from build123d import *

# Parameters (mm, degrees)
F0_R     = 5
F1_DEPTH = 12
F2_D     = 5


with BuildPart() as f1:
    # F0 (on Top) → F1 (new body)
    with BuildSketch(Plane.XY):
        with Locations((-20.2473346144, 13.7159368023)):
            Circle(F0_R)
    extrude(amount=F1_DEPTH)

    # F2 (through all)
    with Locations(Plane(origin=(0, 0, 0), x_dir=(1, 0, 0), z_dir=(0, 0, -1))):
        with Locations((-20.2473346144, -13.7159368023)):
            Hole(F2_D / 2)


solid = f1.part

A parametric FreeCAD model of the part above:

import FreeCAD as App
import Part
import Sketcher

V = App.Vector

doc = App.newDocument("Part")
params = doc.addObject("Spreadsheet::Sheet", "Params")
for row, (alias, value) in enumerate([
    ("sketch1_diameter", "10 mm"),
    ("pad1_length", "12 mm"),
    ("sketch2_diameter", "5 mm"),
    ("hole_diameter", "5 mm"),
], start=1):
    params.set(f"A{row}", alias)
    params.set(f"B{row}", "=" + value)
    params.setAlias(f"B{row}", alias)

body = doc.addObject("PartDesign::Body", "Body")

# Sketch on XY plane
sketch1 = doc.addObject("Sketcher::SketchObject", "Sketch")
body.addObject(sketch1)
sketch1.AttachmentSupport = (doc.XY_Plane, [""])
sketch1.MapMode = "FlatFace"
sketch1.addGeometry(Part.Circle(V(-20, 14, 0), V(0, 0, 1), 5), False)
sketch1.addConstraint(Sketcher.Constraint("Diameter", 0, 10.0))
sketch1.addConstraint(Sketcher.Constraint("DistanceX", 0, 3, -1, 1, 20.247335))
sketch1.addConstraint(Sketcher.Constraint("DistanceY", -1, 1, 0, 3, 13.715937))
sketch1.setExpression("Constraints[0]", "Params.sketch1_diameter")
pad1 = doc.addObject("PartDesign::Pad", "Pad")
body.addObject(pad1)
pad1.Profile = sketch1
pad1.setExpression("Length", "Params.pad1_length")

# Sketch on XY plane
sketch2 = doc.addObject("Sketcher::SketchObject", "Sketch001")
body.addObject(sketch2)
sketch2.AttachmentSupport = (doc.XY_Plane, [""])
sketch2.MapMode = "FlatFace"
sketch2.addGeometry(Part.Circle(V(-20.2, 13.7, 0), V(0, 0, 1), 2.5), False)
sketch2.addConstraint(Sketcher.Constraint("Diameter", 0, 5.0))
sketch2.addConstraint(Sketcher.Constraint("DistanceX", 0, 3, -1, 1, 20.247335))
sketch2.addConstraint(Sketcher.Constraint("DistanceY", -1, 1, 0, 3, 13.715937))
sketch2.setExpression("Constraints[0]", "Params.sketch2_diameter")
doc.recompute()
hole = doc.addObject("PartDesign::Hole", "Hole")
body.addObject(hole)
hole.Profile = sketch2
hole.ThreadType = "None"
hole.setExpression("Diameter", "Params.hole_diameter")
hole.DepthType = "ThroughAll"
hole.Reversed = True

doc.recompute()
